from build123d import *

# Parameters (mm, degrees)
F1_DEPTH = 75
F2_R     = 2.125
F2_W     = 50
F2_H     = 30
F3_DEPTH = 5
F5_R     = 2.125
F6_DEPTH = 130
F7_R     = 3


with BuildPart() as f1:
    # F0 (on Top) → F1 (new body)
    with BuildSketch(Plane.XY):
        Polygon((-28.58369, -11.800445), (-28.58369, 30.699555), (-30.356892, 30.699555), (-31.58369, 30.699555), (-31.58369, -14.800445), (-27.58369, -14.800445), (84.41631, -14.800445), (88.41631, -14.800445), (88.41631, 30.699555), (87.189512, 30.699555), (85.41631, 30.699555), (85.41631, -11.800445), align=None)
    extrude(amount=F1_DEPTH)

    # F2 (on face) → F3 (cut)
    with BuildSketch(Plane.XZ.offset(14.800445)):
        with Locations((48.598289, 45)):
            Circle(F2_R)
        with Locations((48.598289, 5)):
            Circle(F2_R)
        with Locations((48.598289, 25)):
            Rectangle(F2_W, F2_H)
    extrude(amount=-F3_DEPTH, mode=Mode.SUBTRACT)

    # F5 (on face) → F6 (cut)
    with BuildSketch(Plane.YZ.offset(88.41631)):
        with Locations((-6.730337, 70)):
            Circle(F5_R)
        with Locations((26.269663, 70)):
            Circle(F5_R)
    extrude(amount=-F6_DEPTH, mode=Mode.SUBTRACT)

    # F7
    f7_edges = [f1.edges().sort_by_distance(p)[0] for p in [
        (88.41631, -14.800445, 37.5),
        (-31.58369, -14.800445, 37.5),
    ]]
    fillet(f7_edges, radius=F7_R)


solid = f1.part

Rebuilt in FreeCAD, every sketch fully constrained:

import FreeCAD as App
import Part
import Sketcher
Q = App.Units.Quantity


def edges_at(feature, points):
    """Names of the edges that pass closest to the given points."""
    edges = feature.Shape.Edges
    near = lambda p: min(range(len(edges)), key=lambda i: edges[i].distToShape(Part.Vertex(*p))[0])
    return sorted({f"Edge{near(p) + 1}" for p in points})

doc = App.newDocument("Part")
body = doc.addObject("PartDesign::Body", "Body")

sketch1 = body.newObject("Sketcher::SketchObject", "Sketch")
sketch1.AttachmentSupport = (doc.getObject("XY_Plane"), [""])
sketch1.MapMode = "FlatFace"
sketch1.addGeometry([
    Part.LineSegment(App.Vector(-28.58369, -11.800445, 0), App.Vector(-28.58369, 30.699555, 0)),
    Part.LineSegment(App.Vector(-28.58369, 30.699555, 0), App.Vector(-31.58369, 30.699555, 0)),
    Part.LineSegment(App.Vector(-31.58369, 30.699555, 0), App.Vector(-31.58369, -14.800445, 0)),
    Part.LineSegment(App.Vector(-31.58369, -14.800445, 0), App.Vector(88.41631, -14.800445, 0)),
    Part.LineSegment(App.Vector(88.41631, -14.800445, 0), App.Vector(88.41631, 30.699555, 0)),
    Part.LineSegment(App.Vector(88.41631, 30.699555, 0), App.Vector(85.41631, 30.699555, 0)),
    Part.LineSegment(App.Vector(85.41631, 30.699555, 0), App.Vector(85.41631, -11.800445, 0)),
    Part.LineSegment(App.Vector(85.41631, -11.800445, 0), App.Vector(-28.58369, -11.800445, 0)),
], False)
sketch1.addConstraint([
    Sketcher.Constraint("Coincident", 0, 2, 1, 1),
    Sketcher.Constraint("Coincident", 1, 2, 2, 1),
    Sketcher.Constraint("Coincident", 2, 2, 3, 1),
    Sketcher.Constraint("Coincident", 3, 2, 4, 1),
    Sketcher.Constraint("Coincident", 4, 2, 5, 1),
    Sketcher.Constraint("Coincident", 5, 2, 6, 1),
    Sketcher.Constraint("Coincident", 6, 2, 7, 1),
    Sketcher.Constraint("Coincident", 7, 2, 0, 1),
    Sketcher.Constraint("Vertical", 0),
    Sketcher.Constraint("Horizontal", 1),
    Sketcher.Constraint("Vertical", 2),
    Sketcher.Constraint("Horizontal", 3),
    Sketcher.Constraint("Vertical", 4),
    Sketcher.Constraint("Horizontal", 5),
    Sketcher.Constraint("Vertical", 6),
    Sketcher.Constraint("Horizontal", 7),
    Sketcher.Constraint("Horizontal", 1, 2, 4, 2),
    Sketcher.Constraint("Equal", 1, 5),
    Sketcher.Constraint("DistanceX", 1, 2, 1, 1, Q("3 mm")),
    Sketcher.Constraint("DistanceX", 3, 1, 3, 2, Q("120 mm")),
    Sketcher.Constraint("DistanceY", 0, 1, 0, 2, Q("42.5 mm")),
    Sketcher.Constraint("DistanceY", 2, 2, 2, 1, Q("45.5 mm")),
    Sketcher.Constraint("DistanceX", 0, 2, -1, 1, Q("28.58369 mm")),
    Sketcher.Constraint("DistanceY", -1, 1, 0, 2, Q("30.699555 mm")),
])
pad1 = body.newObject("PartDesign::Pad", "Pad")
pad1.Profile = sketch1
pad1.Length = 75

sketch2 = body.newObject("Sketcher::SketchObject", "Sketch001")
sketch2.AttachmentSupport = (doc.getObject("XZ_Plane"), [""])
sketch2.MapMode = "FlatFace"
sketch2.AttachmentOffset = App.Placement(App.Vector(0, 0, 14.800445), App.Rotation())
sketch2.addGeometry([
    Part.Circle(App.Vector(48.598289, 45, 0), App.Vector(0, 0, 1), 2.125),
    Part.Circle(App.Vector(48.598289, 5, 0), App.Vector(0, 0, 1), 2.125),
    Part.LineSegment(App.Vector(23.598289, 40, 0), App.Vector(23.598289, 10, 0)),
    Part.LineSegment(App.Vector(23.598289, 10, 0), App.Vector(73.598289, 10, 0)),
    Part.LineSegment(App.Vector(73.598289, 10, 0), App.Vector(73.598289, 40, 0)),
    Part.LineSegment(App.Vector(73.598289, 40, 0), App.Vector(23.598289, 40, 0)),
], False)
sketch2.addConstraint([
    Sketcher.Constraint("Coincident", 2, 2, 3, 1),
    Sketcher.Constraint("Coincident", 3, 2, 4, 1),
    Sketcher.Constraint("Coincident", 4, 2, 5, 1),
    Sketcher.Constraint("Coincident", 5, 2, 2, 1),
    Sketcher.Constraint("Vertical", 2),
    Sketcher.Constraint("Horizontal", 3),
    Sketcher.Constraint("Vertical", 4),
    Sketcher.Constraint("Horizontal", 5),
    Sketcher.Constraint("Equal", 0, 1),
    Sketcher.Constraint("Vertical", 0, 3, 1, 3),
    Sketcher.Constraint("Diameter", 0, Q("4.25 mm")),
    Sketcher.Constraint("DistanceX", 3, 1, 3, 2, Q("50 mm")),
    Sketcher.Constraint("DistanceY", 2, 2, 2, 1, Q("30 mm")),
    Sketcher.Constraint("DistanceY", -1, 1, 0, 3, Q("45 mm")),
    Sketcher.Constraint("DistanceY", -1, 1, 1, 3, Q("5 mm")),
    Sketcher.Constraint("DistanceY", -1, 1, 2, 2, Q("10 mm")),
    Sketcher.Constraint("DistanceX", 2, 2, 1, 3, Q("25 mm")),
    Sketcher.Constraint("DistanceX", -1, 1, 0, 3, Q("48.598289 mm")),
])
pocket1 = body.newObject("PartDesign::Pocket", "Pocket")
pocket1.Profile = sketch2
pocket1.Length = 5

sketch3 = body.newObject("Sketcher::SketchObject", "Sketch002")
sketch3.AttachmentSupport = (doc.getObject("YZ_Plane"), [""])
sketch3.MapMode = "FlatFace"
sketch3.AttachmentOffset = App.Placement(App.Vector(0, 0, 88.41631), App.Rotation())
sketch3.addGeometry([
    Part.Circle(App.Vector(-6.730337, 70, 0), App.Vector(0, 0, 1), 2.125),
    Part.Circle(App.Vector(26.269663, 70, 0), App.Vector(0, 0, 1), 2.125),
], False)
sketch3.addConstraint([
    Sketcher.Constraint("Equal", 0, 1),
    Sketcher.Constraint("Horizontal", 0, 3, 1, 3),
    Sketcher.Constraint("Diameter", 0, Q("4.25 mm")),
    Sketcher.Constraint("DistanceY", -1, 1, 0, 3, Q("70 mm")),
    Sketcher.Constraint("DistanceX", 0, 3, 1, 3, Q("33 mm")),
    Sketcher.Constraint("DistanceX", 0, 3, -1, 1, Q("6.730337 mm")),
])
pocket2 = body.newObject("PartDesign::Pocket", "Pocket001")
pocket2.Profile = sketch3
pocket2.Length = 130
doc.recompute()

fillet = body.newObject("PartDesign::Fillet", "Fillet")
fillet.Base = (pocket2, edges_at(pocket2, [(88.416, -14.8, 37.5), (-31.584, -14.8, 37.5)]))
fillet.Radius = 3

doc.recompute()
